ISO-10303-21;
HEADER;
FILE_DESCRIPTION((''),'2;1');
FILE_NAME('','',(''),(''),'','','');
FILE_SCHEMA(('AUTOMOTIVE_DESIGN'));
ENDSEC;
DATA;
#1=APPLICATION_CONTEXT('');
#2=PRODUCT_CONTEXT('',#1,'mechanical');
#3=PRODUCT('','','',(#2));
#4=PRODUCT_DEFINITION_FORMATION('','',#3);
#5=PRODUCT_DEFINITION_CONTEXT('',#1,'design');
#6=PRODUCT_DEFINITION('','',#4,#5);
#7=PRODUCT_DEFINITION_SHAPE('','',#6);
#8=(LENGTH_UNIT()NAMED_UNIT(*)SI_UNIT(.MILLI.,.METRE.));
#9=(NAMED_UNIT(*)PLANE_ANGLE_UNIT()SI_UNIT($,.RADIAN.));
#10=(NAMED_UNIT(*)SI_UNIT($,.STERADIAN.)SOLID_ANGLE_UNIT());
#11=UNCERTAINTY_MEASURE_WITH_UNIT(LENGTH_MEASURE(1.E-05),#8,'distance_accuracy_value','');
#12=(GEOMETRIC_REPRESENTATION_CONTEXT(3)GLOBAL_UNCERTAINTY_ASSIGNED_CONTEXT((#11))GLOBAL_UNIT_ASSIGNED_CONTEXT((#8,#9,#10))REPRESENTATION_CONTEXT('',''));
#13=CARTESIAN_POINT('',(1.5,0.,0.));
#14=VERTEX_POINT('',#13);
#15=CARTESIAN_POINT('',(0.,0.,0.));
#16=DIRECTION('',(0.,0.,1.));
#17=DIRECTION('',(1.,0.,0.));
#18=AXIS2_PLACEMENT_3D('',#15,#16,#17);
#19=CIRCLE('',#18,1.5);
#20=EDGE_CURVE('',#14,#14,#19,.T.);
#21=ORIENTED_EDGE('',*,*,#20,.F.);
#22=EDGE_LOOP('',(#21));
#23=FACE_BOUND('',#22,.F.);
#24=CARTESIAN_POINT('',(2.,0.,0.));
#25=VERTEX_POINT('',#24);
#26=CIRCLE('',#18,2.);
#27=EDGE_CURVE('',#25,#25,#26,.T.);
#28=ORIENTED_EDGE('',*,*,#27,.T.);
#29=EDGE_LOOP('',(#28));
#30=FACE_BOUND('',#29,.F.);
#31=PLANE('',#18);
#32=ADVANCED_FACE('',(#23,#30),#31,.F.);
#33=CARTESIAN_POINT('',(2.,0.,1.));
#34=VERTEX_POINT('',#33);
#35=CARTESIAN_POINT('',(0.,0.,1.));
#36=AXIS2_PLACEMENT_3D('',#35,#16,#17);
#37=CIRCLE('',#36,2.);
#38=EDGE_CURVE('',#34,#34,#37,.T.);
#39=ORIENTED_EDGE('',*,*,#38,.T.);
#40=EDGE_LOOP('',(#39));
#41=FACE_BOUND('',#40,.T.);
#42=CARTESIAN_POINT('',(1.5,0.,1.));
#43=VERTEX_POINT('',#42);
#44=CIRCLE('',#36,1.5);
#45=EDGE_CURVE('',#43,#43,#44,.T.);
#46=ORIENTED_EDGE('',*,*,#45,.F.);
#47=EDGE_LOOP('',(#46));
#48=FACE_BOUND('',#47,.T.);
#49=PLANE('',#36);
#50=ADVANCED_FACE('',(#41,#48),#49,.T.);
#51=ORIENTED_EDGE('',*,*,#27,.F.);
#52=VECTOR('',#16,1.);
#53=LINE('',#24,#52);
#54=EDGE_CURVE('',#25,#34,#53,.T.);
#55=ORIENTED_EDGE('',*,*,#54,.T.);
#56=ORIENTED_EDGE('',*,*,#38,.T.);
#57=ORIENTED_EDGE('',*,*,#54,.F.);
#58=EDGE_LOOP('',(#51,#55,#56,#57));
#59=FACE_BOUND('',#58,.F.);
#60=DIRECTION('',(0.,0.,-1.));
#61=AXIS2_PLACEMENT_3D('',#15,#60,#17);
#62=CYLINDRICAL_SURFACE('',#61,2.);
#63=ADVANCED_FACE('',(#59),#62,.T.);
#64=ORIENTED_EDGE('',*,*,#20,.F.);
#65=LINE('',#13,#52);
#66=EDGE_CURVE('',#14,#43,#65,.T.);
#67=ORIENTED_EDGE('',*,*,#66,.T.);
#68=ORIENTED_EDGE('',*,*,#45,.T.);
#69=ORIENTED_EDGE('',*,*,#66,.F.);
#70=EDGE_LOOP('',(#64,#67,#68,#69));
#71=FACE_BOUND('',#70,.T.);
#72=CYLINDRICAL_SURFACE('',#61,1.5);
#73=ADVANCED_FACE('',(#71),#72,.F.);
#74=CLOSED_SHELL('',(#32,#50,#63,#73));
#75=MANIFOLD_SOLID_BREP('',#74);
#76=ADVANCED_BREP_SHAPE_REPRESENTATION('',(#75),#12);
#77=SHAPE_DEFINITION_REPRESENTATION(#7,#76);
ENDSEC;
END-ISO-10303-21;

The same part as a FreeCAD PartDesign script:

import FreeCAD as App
import Part
import Sketcher

doc = App.newDocument("Part")
body = doc.addObject("PartDesign::Body", "Body")

# Sketch on XY plane
sketch1 = doc.addObject("Sketcher::SketchObject", "Sketch")
body.addObject(sketch1)
sketch1.AttachmentSupport = (doc.XY_Plane, [""])
sketch1.MapMode = "FlatFace"
sketch1.addGeometry([
    Part.Circle(App.Vector(0, 0, 0), App.Vector(0, 0, 1), 2),
    Part.Circle(App.Vector(0, 0, 0), App.Vector(0, 0, 1), 1.5),
], False)
sketch1.addConstraint([
    Sketcher.Constraint("Coincident", 0, 3, -1, 1),
    Sketcher.Constraint("Coincident", 1, 3, -1, 1),
    Sketcher.Constraint("Diameter", 1, 3.0),
    Sketcher.Constraint("Diameter", 0, 4.0),
])
pad1 = doc.addObject("PartDesign::Pad", "Pad")
body.addObject(pad1)
pad1.Profile = sketch1
pad1.Length = 1

doc.recompute()
